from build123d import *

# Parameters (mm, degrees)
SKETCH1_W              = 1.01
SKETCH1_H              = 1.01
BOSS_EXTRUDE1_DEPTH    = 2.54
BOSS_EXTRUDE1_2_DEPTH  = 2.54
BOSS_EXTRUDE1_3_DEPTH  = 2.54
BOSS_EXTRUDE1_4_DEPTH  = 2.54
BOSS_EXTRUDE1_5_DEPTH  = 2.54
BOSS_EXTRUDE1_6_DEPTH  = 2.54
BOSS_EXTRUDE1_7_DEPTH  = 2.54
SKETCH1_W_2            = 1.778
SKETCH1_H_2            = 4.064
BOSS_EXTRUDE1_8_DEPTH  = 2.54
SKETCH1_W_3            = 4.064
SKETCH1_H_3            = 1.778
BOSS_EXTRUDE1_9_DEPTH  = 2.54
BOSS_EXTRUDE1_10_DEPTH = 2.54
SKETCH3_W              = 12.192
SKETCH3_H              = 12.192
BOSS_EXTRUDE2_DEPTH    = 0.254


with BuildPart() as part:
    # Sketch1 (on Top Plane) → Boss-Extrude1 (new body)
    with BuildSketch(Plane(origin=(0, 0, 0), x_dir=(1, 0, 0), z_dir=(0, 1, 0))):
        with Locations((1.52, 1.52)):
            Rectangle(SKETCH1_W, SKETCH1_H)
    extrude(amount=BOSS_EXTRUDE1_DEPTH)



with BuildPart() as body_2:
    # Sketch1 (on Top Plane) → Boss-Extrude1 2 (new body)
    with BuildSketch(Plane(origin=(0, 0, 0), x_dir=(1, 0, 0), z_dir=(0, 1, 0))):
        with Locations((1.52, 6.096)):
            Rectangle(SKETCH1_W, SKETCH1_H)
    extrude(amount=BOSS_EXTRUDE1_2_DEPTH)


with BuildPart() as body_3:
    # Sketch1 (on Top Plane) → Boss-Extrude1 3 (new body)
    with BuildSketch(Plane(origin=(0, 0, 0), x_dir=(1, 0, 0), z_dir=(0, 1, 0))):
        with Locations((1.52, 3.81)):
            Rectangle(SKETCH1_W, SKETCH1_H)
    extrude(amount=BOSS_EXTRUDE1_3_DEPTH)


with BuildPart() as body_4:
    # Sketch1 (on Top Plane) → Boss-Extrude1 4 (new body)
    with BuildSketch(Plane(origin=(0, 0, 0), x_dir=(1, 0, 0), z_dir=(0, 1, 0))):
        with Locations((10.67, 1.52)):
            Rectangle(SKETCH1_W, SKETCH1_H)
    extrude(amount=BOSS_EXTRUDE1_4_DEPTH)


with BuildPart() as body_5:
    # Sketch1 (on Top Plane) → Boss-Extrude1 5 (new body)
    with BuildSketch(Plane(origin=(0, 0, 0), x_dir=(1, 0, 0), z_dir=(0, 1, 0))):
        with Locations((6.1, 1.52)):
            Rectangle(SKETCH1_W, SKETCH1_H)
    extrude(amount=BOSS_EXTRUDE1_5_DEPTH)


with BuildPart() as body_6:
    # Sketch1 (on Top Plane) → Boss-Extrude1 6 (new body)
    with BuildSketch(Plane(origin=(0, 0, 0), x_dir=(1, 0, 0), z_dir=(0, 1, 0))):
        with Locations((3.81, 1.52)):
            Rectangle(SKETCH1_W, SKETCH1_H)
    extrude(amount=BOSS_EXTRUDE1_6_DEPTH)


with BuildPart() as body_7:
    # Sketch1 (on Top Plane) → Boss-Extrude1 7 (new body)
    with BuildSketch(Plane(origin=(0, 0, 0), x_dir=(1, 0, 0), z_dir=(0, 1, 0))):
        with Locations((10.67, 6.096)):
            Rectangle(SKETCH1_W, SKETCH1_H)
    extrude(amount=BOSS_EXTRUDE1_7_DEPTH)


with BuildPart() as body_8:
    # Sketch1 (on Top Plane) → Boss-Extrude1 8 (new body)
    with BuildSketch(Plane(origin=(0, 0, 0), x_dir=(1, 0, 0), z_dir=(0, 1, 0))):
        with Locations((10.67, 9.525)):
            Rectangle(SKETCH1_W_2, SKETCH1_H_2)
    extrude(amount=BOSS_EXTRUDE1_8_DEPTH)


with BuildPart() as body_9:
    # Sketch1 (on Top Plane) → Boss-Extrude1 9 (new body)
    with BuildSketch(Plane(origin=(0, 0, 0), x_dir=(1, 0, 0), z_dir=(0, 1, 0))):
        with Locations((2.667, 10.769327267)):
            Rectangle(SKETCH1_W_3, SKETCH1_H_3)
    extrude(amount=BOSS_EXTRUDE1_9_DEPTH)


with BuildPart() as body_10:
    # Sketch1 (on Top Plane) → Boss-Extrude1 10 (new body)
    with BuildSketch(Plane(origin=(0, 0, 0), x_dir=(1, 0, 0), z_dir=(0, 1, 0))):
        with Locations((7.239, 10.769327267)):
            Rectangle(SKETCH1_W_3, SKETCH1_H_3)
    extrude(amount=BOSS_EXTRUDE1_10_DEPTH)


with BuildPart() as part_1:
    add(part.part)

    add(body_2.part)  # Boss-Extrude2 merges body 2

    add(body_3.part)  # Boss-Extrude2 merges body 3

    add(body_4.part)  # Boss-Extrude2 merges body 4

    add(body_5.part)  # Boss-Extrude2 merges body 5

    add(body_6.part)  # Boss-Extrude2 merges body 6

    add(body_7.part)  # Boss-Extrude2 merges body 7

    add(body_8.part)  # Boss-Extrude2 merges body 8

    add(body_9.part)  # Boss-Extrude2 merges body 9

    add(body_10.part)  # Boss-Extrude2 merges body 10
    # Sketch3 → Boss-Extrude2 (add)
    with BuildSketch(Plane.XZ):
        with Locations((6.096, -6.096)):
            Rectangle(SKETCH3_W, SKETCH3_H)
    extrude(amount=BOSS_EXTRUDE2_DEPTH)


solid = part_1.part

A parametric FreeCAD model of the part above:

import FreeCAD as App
import Part
import Sketcher
from FreeCAD import Vector
Q = App.Units.Quantity

doc = App.newDocument("Part")
body = doc.addObject("PartDesign::Body", "Body")

sketch1 = body.newObject("Sketcher::SketchObject", "Sketch")
sketch1.AttachmentSupport = (doc.getObject("XZ_Plane"), [""])
sketch1.MapMode = "FlatFace"
sketch1.addGeometry(Part.LineSegment(Vector(1, -2, 0), Vector(1, -1, 0)), False)
sketch1.addGeometry(Part.LineSegment(Vector(1, -1, 0), Vector(2, -1, 0)), False)
sketch1.addGeometry(Part.LineSegment(Vector(2, -1, 0), Vector(2, -2, 0)), False)
sketch1.addGeometry(Part.LineSegment(Vector(2, -2, 0), Vector(1, -2, 0)), False)
sketch1.addConstraint(Sketcher.Constraint("Coincident", 0, 2, 1, 1))
sketch1.addConstraint(Sketcher.Constraint("Coincident", 1, 2, 2, 1))
sketch1.addConstraint(Sketcher.Constraint("Coincident", 2, 2, 3, 1))
sketch1.addConstraint(Sketcher.Constraint("Coincident", 3, 2, 0, 1))
sketch1.addConstraint(Sketcher.Constraint("Vertical", 0))
sketch1.addConstraint(Sketcher.Constraint("Horizontal", 1))
sketch1.addConstraint(Sketcher.Constraint("Vertical", 2))
sketch1.addConstraint(Sketcher.Constraint("Horizontal", 3))
sketch1.addConstraint(Sketcher.Constraint("Equal", 3, 0))
sketch1.addConstraint(Sketcher.Constraint("DistanceX", 1, 1, 1, 2, Q("1.01 mm")))
sketch1.addConstraint(Sketcher.Constraint("DistanceX", -1, 1, 0, 2, Q("1.015 mm")))
sketch1.addConstraint(Sketcher.Constraint("DistanceY", 0, 2, -1, 1, Q("1.015 mm")))
pad1 = body.newObject("PartDesign::Pad", "Pad")
pad1.Profile = sketch1
pad1.Length = Q("0.1 in")
pad1.Reversed = True
body2 = doc.addObject("PartDesign::Body", "Body001")

sketch2 = body2.newObject("Sketcher::SketchObject", "Sketch001")
sketch2.AttachmentSupport = (doc.getObject("XZ_Plane001"), [""])
sketch2.MapMode = "FlatFace"
sketch2.addGeometry(Part.LineSegment(Vector(1, -6.6, 0), Vector(1, -5.6, 0)), False)
sketch2.addGeometry(Part.LineSegment(Vector(1, -5.6, 0), Vector(2, -5.6, 0)), False)
sketch2.addGeometry(Part.LineSegment(Vector(2, -5.6, 0), Vector(2, -6.6, 0)), False)
sketch2.addGeometry(Part.LineSegment(Vector(2, -6.6, 0), Vector(1, -6.6, 0)), False)
sketch2.addConstraint(Sketcher.Constraint("Coincident", 0, 2, 1, 1))
sketch2.addConstraint(Sketcher.Constraint("Coincident", 1, 2, 2, 1))
sketch2.addConstraint(Sketcher.Constraint("Coincident", 2, 2, 3, 1))
sketch2.addConstraint(Sketcher.Constraint("Coincident", 3, 2, 0, 1))
sketch2.addConstraint(Sketcher.Constraint("Vertical", 0))
sketch2.addConstraint(Sketcher.Constraint("Horizontal", 1))
sketch2.addConstraint(Sketcher.Constraint("Vertical", 2))
sketch2.addConstraint(Sketcher.Constraint("Horizontal", 3))
sketch2.addConstraint(Sketcher.Constraint("Equal", 3, 0))
sketch2.addConstraint(Sketcher.Constraint("DistanceX", 1, 1, 1, 2, Q("1.01 mm")))
sketch2.addConstraint(Sketcher.Constraint("DistanceX", -1, 1, 0, 2, Q("1.015 mm")))
sketch2.addConstraint(Sketcher.Constraint("DistanceY", 0, 2, -1, 1, Q("5.591 mm")))
pad2 = body2.newObject("PartDesign::Pad", "Pad001")
pad2.Profile = sketch2
pad2.Length = Q("0.1 in")
pad2.Reversed = True
body3 = doc.addObject("PartDesign::Body", "Body002")

sketch3 = body3.newObject("Sketcher::SketchObject", "Sketch002")
sketch3.AttachmentSupport = (doc.getObject("XZ_Plane002"), [""])
sketch3.MapMode = "FlatFace"
sketch3.addGeometry(Part.LineSegment(Vector(1, -4.3, 0), Vector(1, -3.3, 0)), False)
sketch3.addGeometry(Part.LineSegment(Vector(1, -3.3, 0), Vector(2, -3.3, 0)), False)
sketch3.addGeometry(Part.LineSegment(Vector(2, -3.3, 0), Vector(2, -4.3, 0)), False)
sketch3.addGeometry(Part.LineSegment(Vector(2, -4.3, 0), Vector(1, -4.3, 0)), False)
sketch3.addConstraint(Sketcher.Constraint("Coincident", 0, 2, 1, 1))
sketch3.addConstraint(Sketcher.Constraint("Coincident", 1, 2, 2, 1))
sketch3.addConstraint(Sketcher.Constraint("Coincident", 2, 2, 3, 1))
sketch3.addConstraint(Sketcher.Constraint("Coincident", 3, 2, 0, 1))
sketch3.addConstraint(Sketcher.Constraint("Vertical", 0))
sketch3.addConstraint(Sketcher.Constraint("Horizontal", 1))
sketch3.addConstraint(Sketcher.Constraint("Vertical", 2))
sketch3.addConstraint(Sketcher.Constraint("Horizontal", 3))
sketch3.addConstraint(Sketcher.Constraint("Equal", 3, 0))
sketch3.addConstraint(Sketcher.Constraint("DistanceX", 1, 1, 1, 2, Q("1.01 mm")))
sketch3.addConstraint(Sketcher.Constraint("DistanceX", -1, 1, 0, 2, Q("1.015 mm")))
sketch3.addConstraint(Sketcher.Constraint("DistanceY", 0, 2, -1, 1, Q("3.305 mm")))
pad3 = body3.newObject("PartDesign::Pad", "Pad002")
pad3.Profile = sketch3
pad3.Length = Q("0.1 in")
pad3.Reversed = True
body4 = doc.addObject("PartDesign::Body", "Body003")

sketch4 = body4.newObject("Sketcher::SketchObject", "Sketch003")
sketch4.AttachmentSupport = (doc.getObject("XZ_Plane003"), [""])
sketch4.MapMode = "FlatFace"
sketch4.addGeometry(Part.LineSegment(Vector(10.2, -2, 0), Vector(10.2, -1, 0)), False)
sketch4.addGeometry(Part.LineSegment(Vector(10.2, -1, 0), Vector(11.2, -1, 0)), False)
sketch4.addGeometry(Part.LineSegment(Vector(11.2, -1, 0), Vector(11.2, -2, 0)), False)
sketch4.addGeometry(Part.LineSegment(Vector(11.2, -2, 0), Vector(10.2, -2, 0)), False)
sketch4.addConstraint(Sketcher.Constraint("Coincident", 0, 2, 1, 1))
sketch4.addConstraint(Sketcher.Constraint("Coincident", 1, 2, 2, 1))
sketch4.addConstraint(Sketcher.Constraint("Coincident", 2, 2, 3, 1))
sketch4.addConstraint(Sketcher.Constraint("Coincident", 3, 2, 0, 1))
sketch4.addConstraint(Sketcher.Constraint("Vertical", 0))
sketch4.addConstraint(Sketcher.Constraint("Horizontal", 1))
sketch4.addConstraint(Sketcher.Constraint("Vertical", 2))
sketch4.addConstraint(Sketcher.Constraint("Horizontal", 3))
sketch4.addConstraint(Sketcher.Constraint("Equal", 3, 0))
sketch4.addConstraint(Sketcher.Constraint("DistanceX", 1, 1, 1, 2, Q("1.01 mm")))
sketch4.addConstraint(Sketcher.Constraint("DistanceX", -1, 1, 0, 2, Q("10.165 mm")))
sketch4.addConstraint(Sketcher.Constraint("DistanceY", 0, 2, -1, 1, Q("1.015 mm")))
pad4 = body4.newObject("PartDesign::Pad", "Pad003")
pad4.Profile = sketch4
pad4.Length = Q("0.1 in")
pad4.Reversed = True
body5 = doc.addObject("PartDesign::Body", "Body004")

sketch5 = body5.newObject("Sketcher::SketchObject", "Sketch004")
sketch5.AttachmentSupport = (doc.getObject("XZ_Plane004"), [""])
sketch5.MapMode = "FlatFace"
sketch5.addGeometry(Part.LineSegment(Vector(5.6, -2, 0), Vector(5.6, -1, 0)), False)
sketch5.addGeometry(Part.LineSegment(Vector(5.6, -1, 0), Vector(6.6, -1, 0)), False)
sketch5.addGeometry(Part.LineSegment(Vector(6.6, -1, 0), Vector(6.6, -2, 0)), False)
sketch5.addGeometry(Part.LineSegment(Vector(6.6, -2, 0), Vector(5.6, -2, 0)), False)
sketch5.addConstraint(Sketcher.Constraint("Coincident", 0, 2, 1, 1))
sketch5.addConstraint(Sketcher.Constraint("Coincident", 1, 2, 2, 1))
sketch5.addConstraint(Sketcher.Constraint("Coincident", 2, 2, 3, 1))
sketch5.addConstraint(Sketcher.Constraint("Coincident", 3, 2, 0, 1))
sketch5.addConstraint(Sketcher.Constraint("Vertical", 0))
sketch5.addConstraint(Sketcher.Constraint("Horizontal", 1))
sketch5.addConstraint(Sketcher.Constraint("Vertical", 2))
sketch5.addConstraint(Sketcher.Constraint("Horizontal", 3))
sketch5.addConstraint(Sketcher.Constraint("Equal", 3, 0))
sketch5.addConstraint(Sketcher.Constraint("DistanceX", 1, 1, 1, 2, Q("1.01 mm")))
sketch5.addConstraint(Sketcher.Constraint("DistanceX", -1, 1, 0, 2, Q("5.595 mm")))
sketch5.addConstraint(Sketcher.Constraint("DistanceY", 0, 2, -1, 1, Q("1.015 mm")))
pad5 = body5.newObject("PartDesign::Pad", "Pad004")
pad5.Profile = sketch5
pad5.Length = Q("0.1 in")
pad5.Reversed = True
body6 = doc.addObject("PartDesign::Body", "Body005")

sketch6 = body6.newObject("Sketcher::SketchObject", "Sketch005")
sketch6.AttachmentSupport = (doc.getObject("XZ_Plane005"), [""])
sketch6.MapMode = "FlatFace"
sketch6.addGeometry(Part.LineSegment(Vector(3.3, -2, 0), Vector(3.3, -1, 0)), False)
sketch6.addGeometry(Part.LineSegment(Vector(3.3, -1, 0), Vector(4.3, -1, 0)), False)
sketch6.addGeometry(Part.LineSegment(Vector(4.3, -1, 0), Vector(4.3, -2, 0)), False)
sketch6.addGeometry(Part.LineSegment(Vector(4.3, -2, 0), Vector(3.3, -2, 0)), False)
sketch6.addConstraint(Sketcher.Constraint("Coincident", 0, 2, 1, 1))
sketch6.addConstraint(Sketcher.Constraint("Coincident", 1, 2, 2, 1))
sketch6.addConstraint(Sketcher.Constraint("Coincident", 2, 2, 3, 1))
sketch6.addConstraint(Sketcher.Constraint("Coincident", 3, 2, 0, 1))
sketch6.addConstraint(Sketcher.Constraint("Vertical", 0))
sketch6.addConstraint(Sketcher.Constraint("Horizontal", 1))
sketch6.addConstraint(Sketcher.Constraint("Vertical", 2))
sketch6.addConstraint(Sketcher.Constraint("Horizontal", 3))
sketch6.addConstraint(Sketcher.Constraint("Equal", 3, 0))
sketch6.addConstraint(Sketcher.Constraint("DistanceX", 1, 1, 1, 2, Q("1.01 mm")))
sketch6.addConstraint(Sketcher.Constraint("DistanceX", -1, 1, 0, 2, Q("3.305 mm")))
sketch6.addConstraint(Sketcher.Constraint("DistanceY", 0, 2, -1, 1, Q("1.015 mm")))
pad6 = body6.newObject("PartDesign::Pad", "Pad005")
pad6.Profile = sketch6
pad6.Length = Q("0.1 in")
pad6.Reversed = True
body7 = doc.addObject("PartDesign::Body", "Body006")

sketch7 = body7.newObject("Sketcher::SketchObject", "Sketch006")
sketch7.AttachmentSupport = (doc.getObject("XZ_Plane006"), [""])
sketch7.MapMode = "FlatFace"
sketch7.addGeometry(Part.LineSegment(Vector(10.2, -6.6, 0), Vector(10.2, -5.6, 0)), False)
sketch7.addGeometry(Part.LineSegment(Vector(10.2, -5.6, 0), Vector(11.2, -5.6, 0)), False)
sketch7.addGeometry(Part.LineSegment(Vector(11.2, -5.6, 0), Vector(11.2, -6.6, 0)), False)
sketch7.addGeometry(Part.LineSegment(Vector(11.2, -6.6, 0), Vector(10.2, -6.6, 0)), False)
sketch7.addConstraint(Sketcher.Constraint("Coincident", 0, 2, 1, 1))
sketch7.addConstraint(Sketcher.Constraint("Coincident", 1, 2, 2, 1))
sketch7.addConstraint(Sketcher.Constraint("Coincident", 2, 2, 3, 1))
sketch7.addConstraint(Sketcher.Constraint("Coincident", 3, 2, 0, 1))
sketch7.addConstraint(Sketcher.Constraint("Vertical", 0))
sketch7.addConstraint(Sketcher.Constraint("Horizontal", 1))
sketch7.addConstraint(Sketcher.Constraint("Vertical", 2))
sketch7.addConstraint(Sketcher.Constraint("Horizontal", 3))
sketch7.addConstraint(Sketcher.Constraint("Equal", 3, 0))
sketch7.addConstraint(Sketcher.Constraint("DistanceX", 1, 1, 1, 2, Q("1.01 mm")))
sketch7.addConstraint(Sketcher.Constraint("DistanceX", -1, 1, 0, 2, Q("10.165 mm")))
sketch7.addConstraint(Sketcher.Constraint("DistanceY", 0, 2, -1, 1, Q("5.591 mm")))
pad7 = body7.newObject("PartDesign::Pad", "Pad006")
pad7.Profile = sketch7
pad7.Length = Q("0.1 in")
pad7.Reversed = True
body8 = doc.addObject("PartDesign::Body", "Body007")

sketch8 = body8.newObject("Sketcher::SketchObject", "Sketch007")
sketch8.AttachmentSupport = (doc.getObject("XZ_Plane007"), [""])
sketch8.MapMode = "FlatFace"
sketch8.addGeometry(Part.LineSegment(Vector(9.8, -11.6, 0), Vector(9.8, -7.5, 0)), False)
sketch8.addGeometry(Part.LineSegment(Vector(9.8, -7.5, 0), Vector(11.6, -7.5, 0)), False)
sketch8.addGeometry(Part.LineSegment(Vector(11.6, -7.5, 0), Vector(11.6, -11.6, 0)), False)
sketch8.addGeometry(Part.LineSegment(Vector(11.6, -11.6, 0), Vector(9.8, -11.6, 0)), False)
sketch8.addConstraint(Sketcher.Constraint("Coincident", 0, 2, 1, 1))
sketch8.addConstraint(Sketcher.Constraint("Coincident", 1, 2, 2, 1))
sketch8.addConstraint(Sketcher.Constraint("Coincident", 2, 2, 3, 1))
sketch8.addConstraint(Sketcher.Constraint("Coincident", 3, 2, 0, 1))
sketch8.addConstraint(Sketcher.Constraint("Vertical", 0))
sketch8.addConstraint(Sketcher.Constraint("Horizontal", 1))
sketch8.addConstraint(Sketcher.Constraint("Vertical", 2))
sketch8.addConstraint(Sketcher.Constraint("Horizontal", 3))
sketch8.addConstraint(Sketcher.Constraint("DistanceX", 1, 1, 1, 2, Q("0.07 in")))
sketch8.addConstraint(Sketcher.Constraint("DistanceY", 0, 1, 0, 2, Q("0.16 in")))
sketch8.addConstraint(Sketcher.Constraint("DistanceY", 0, 2, -1, 1, Q("0.295 in")))
sketch8.addConstraint(Sketcher.Constraint("DistanceX", -1, 1, 0, 2, Q("9.781 mm")))
pad8 = body8.newObject("PartDesign::Pad", "Pad007")
pad8.Profile = sketch8
pad8.Length = Q("0.1 in")
pad8.Reversed = True
body9 = doc.addObject("PartDesign::Body", "Body008")

sketch9 = body9.newObject("Sketcher::SketchObject", "Sketch008")
sketch9.AttachmentSupport = (doc.getObject("XZ_Plane008"), [""])
sketch9.MapMode = "FlatFace"
sketch9.addGeometry(Part.LineSegment(Vector(0.6, -11.7, 0), Vector(0.6, -9.9, 0)), False)
sketch9.addGeometry(Part.LineSegment(Vector(0.6, -9.9, 0), Vector(4.7, -9.9, 0)), False)
sketch9.addGeometry(Part.LineSegment(Vector(4.7, -9.9, 0), Vector(4.7, -11.7, 0)), False)
sketch9.addGeometry(Part.LineSegment(Vector(4.7, -11.7, 0), Vector(0.6, -11.7, 0)), False)
sketch9.addConstraint(Sketcher.Constraint("Coincident", 0, 2, 1, 1))
sketch9.addConstraint(Sketcher.Constraint("Coincident", 1, 2, 2, 1))
sketch9.addConstraint(Sketcher.Constraint("Coincident", 2, 2, 3, 1))
sketch9.addConstraint(Sketcher.Constraint("Coincident", 3, 2, 0, 1))
sketch9.addConstraint(Sketcher.Constraint("Vertical", 0))
sketch9.addConstraint(Sketcher.Constraint("Horizontal", 1))
sketch9.addConstraint(Sketcher.Constraint("Vertical", 2))
sketch9.addConstraint(Sketcher.Constraint("Horizontal", 3))
sketch9.addConstraint(Sketcher.Constraint("DistanceX", 1, 1, 1, 2, Q("0.16 in")))
sketch9.addConstraint(Sketcher.Constraint("DistanceY", 0, 1, 0, 2, Q("0.07 in")))
sketch9.addConstraint(Sketcher.Constraint("DistanceX", -1, 1, 0, 2, Q("0.025 in")))
sketch9.addConstraint(Sketcher.Constraint("DistanceY", 0, 2, -1, 1, Q("9.880327 mm")))
pad9 = body9.newObject("PartDesign::Pad", "Pad008")
pad9.Profile = sketch9
pad9.Length = Q("0.1 in")
pad9.Reversed = True
body10 = doc.addObject("PartDesign::Body", "Body009")

sketch10 = body10.newObject("Sketcher::SketchObject", "Sketch009")
sketch10.AttachmentSupport = (doc.getObject("XZ_Plane009"), [""])
sketch10.MapMode = "FlatFace"
sketch10.addGeometry(Part.LineSegment(Vector(5.2, -11.7, 0), Vector(5.2, -9.9, 0)), False)
sketch10.addGeometry(Part.LineSegment(Vector(5.2, -9.9, 0), Vector(9.3, -9.9, 0)), False)
sketch10.addGeometry(Part.LineSegment(Vector(9.3, -9.9, 0), Vector(9.3, -11.7, 0)), False)
sketch10.addGeometry(Part.LineSegment(Vector(9.3, -11.7, 0), Vector(5.2, -11.7, 0)), False)
sketch10.addConstraint(Sketcher.Constraint("Coincident", 0, 2, 1, 1))
sketch10.addConstraint(Sketcher.Constraint("Coincident", 1, 2, 2, 1))
sketch10.addConstraint(Sketcher.Constraint("Coincident", 2, 2, 3, 1))
sketch10.addConstraint(Sketcher.Constraint("Coincident", 3, 2, 0, 1))
sketch10.addConstraint(Sketcher.Constraint("Vertical", 0))
sketch10.addConstraint(Sketcher.Constraint("Horizontal", 1))
sketch10.addConstraint(Sketcher.Constraint("Vertical", 2))
sketch10.addConstraint(Sketcher.Constraint("Horizontal", 3))
sketch10.addConstraint(Sketcher.Constraint("DistanceX", 1, 1, 1, 2, Q("0.16 in")))
sketch10.addConstraint(Sketcher.Constraint("DistanceY", 0, 1, 0, 2, Q("0.07 in")))
sketch10.addConstraint(Sketcher.Constraint("DistanceX", -1, 1, 0, 2, Q("0.205 in")))
sketch10.addConstraint(Sketcher.Constraint("DistanceY", 0, 2, -1, 1, Q("9.880327 mm")))
pad10 = body10.newObject("PartDesign::Pad", "Pad009")
pad10.Profile = sketch10
pad10.Length = Q("0.1 in")
pad10.Reversed = True
body.AllowCompound = True
doc.recompute()

boolean = body.newObject("PartDesign::Boolean", "Boolean")
boolean.Type = "Fuse"
boolean.addObjects([body2])
doc.recompute()

boolean2 = body.newObject("PartDesign::Boolean", "Boolean001")
boolean2.Type = "Fuse"
boolean2.addObjects([body3])
doc.recompute()

boolean3 = body.newObject("PartDesign::Boolean", "Boolean002")
boolean3.Type = "Fuse"
boolean3.addObjects([body4])
doc.recompute()

boolean4 = body.newObject("PartDesign::Boolean", "Boolean003")
boolean4.Type = "Fuse"
boolean4.addObjects([body5])
doc.recompute()

boolean5 = body.newObject("PartDesign::Boolean", "Boolean004")
boolean5.Type = "Fuse"
boolean5.addObjects([body6])
doc.recompute()

boolean6 = body.newObject("PartDesign::Boolean", "Boolean005")
boolean6.Type = "Fuse"
boolean6.addObjects([body7])
doc.recompute()

boolean7 = body.newObject("PartDesign::Boolean", "Boolean006")
boolean7.Type = "Fuse"
boolean7.addObjects([body8])
doc.recompute()

boolean8 = body.newObject("PartDesign::Boolean", "Boolean007")
boolean8.Type = "Fuse"
boolean8.addObjects([body9])
doc.recompute()

boolean9 = body.newObject("PartDesign::Boolean", "Boolean008")
boolean9.Type = "Fuse"
boolean9.addObjects([body10])

sketch11 = body.newObject("Sketcher::SketchObject", "Sketch010")
sketch11.AttachmentSupport = (doc.getObject("XZ_Plane"), [""])
sketch11.MapMode = "FlatFace"
sketch11.addGeometry(Part.LineSegment(Vector(0, 0, 0), Vector(0, -12, 0)), False)
sketch11.addGeometry(Part.LineSegment(Vector(0, -12, 0), Vector(12, -12, 0)), False)
sketch11.addGeometry(Part.LineSegment(Vector(12, -12, 0), Vector(12, 0, 0)), False)
sketch11.addGeometry(Part.LineSegment(Vector(12, 0, 0), Vector(0, 0, 0)), False)
sketch11.addConstraint(Sketcher.Constraint("Coincident", 0, 2, 1, 1))
sketch11.addConstraint(Sketcher.Constraint("Coincident", 1, 2, 2, 1))
sketch11.addConstraint(Sketcher.Constraint("Coincident", 2, 2, 3, 1))
sketch11.addConstraint(Sketcher.Constraint("Coincident", 3, 2, 0, 1))
sketch11.addConstraint(Sketcher.Constraint("Vertical", 0))
sketch11.addConstraint(Sketcher.Constraint("Horizontal", 1))
sketch11.addConstraint(Sketcher.Constraint("Vertical", 2))
sketch11.addConstraint(Sketcher.Constraint("Horizontal", 3))
sketch11.addConstraint(Sketcher.Constraint("Coincident", 3, 2, -1, 1))
sketch11.addConstraint(Sketcher.Constraint("Equal", 3, 0))
sketch11.addConstraint(Sketcher.Constraint("DistanceX", 1, 1, 1, 2, Q("0.48 in")))
pad11 = body.newObject("PartDesign::Pad", "Pad010")
pad11.Profile = sketch11
pad11.Length = Q("0.01 in")

doc.recompute()
